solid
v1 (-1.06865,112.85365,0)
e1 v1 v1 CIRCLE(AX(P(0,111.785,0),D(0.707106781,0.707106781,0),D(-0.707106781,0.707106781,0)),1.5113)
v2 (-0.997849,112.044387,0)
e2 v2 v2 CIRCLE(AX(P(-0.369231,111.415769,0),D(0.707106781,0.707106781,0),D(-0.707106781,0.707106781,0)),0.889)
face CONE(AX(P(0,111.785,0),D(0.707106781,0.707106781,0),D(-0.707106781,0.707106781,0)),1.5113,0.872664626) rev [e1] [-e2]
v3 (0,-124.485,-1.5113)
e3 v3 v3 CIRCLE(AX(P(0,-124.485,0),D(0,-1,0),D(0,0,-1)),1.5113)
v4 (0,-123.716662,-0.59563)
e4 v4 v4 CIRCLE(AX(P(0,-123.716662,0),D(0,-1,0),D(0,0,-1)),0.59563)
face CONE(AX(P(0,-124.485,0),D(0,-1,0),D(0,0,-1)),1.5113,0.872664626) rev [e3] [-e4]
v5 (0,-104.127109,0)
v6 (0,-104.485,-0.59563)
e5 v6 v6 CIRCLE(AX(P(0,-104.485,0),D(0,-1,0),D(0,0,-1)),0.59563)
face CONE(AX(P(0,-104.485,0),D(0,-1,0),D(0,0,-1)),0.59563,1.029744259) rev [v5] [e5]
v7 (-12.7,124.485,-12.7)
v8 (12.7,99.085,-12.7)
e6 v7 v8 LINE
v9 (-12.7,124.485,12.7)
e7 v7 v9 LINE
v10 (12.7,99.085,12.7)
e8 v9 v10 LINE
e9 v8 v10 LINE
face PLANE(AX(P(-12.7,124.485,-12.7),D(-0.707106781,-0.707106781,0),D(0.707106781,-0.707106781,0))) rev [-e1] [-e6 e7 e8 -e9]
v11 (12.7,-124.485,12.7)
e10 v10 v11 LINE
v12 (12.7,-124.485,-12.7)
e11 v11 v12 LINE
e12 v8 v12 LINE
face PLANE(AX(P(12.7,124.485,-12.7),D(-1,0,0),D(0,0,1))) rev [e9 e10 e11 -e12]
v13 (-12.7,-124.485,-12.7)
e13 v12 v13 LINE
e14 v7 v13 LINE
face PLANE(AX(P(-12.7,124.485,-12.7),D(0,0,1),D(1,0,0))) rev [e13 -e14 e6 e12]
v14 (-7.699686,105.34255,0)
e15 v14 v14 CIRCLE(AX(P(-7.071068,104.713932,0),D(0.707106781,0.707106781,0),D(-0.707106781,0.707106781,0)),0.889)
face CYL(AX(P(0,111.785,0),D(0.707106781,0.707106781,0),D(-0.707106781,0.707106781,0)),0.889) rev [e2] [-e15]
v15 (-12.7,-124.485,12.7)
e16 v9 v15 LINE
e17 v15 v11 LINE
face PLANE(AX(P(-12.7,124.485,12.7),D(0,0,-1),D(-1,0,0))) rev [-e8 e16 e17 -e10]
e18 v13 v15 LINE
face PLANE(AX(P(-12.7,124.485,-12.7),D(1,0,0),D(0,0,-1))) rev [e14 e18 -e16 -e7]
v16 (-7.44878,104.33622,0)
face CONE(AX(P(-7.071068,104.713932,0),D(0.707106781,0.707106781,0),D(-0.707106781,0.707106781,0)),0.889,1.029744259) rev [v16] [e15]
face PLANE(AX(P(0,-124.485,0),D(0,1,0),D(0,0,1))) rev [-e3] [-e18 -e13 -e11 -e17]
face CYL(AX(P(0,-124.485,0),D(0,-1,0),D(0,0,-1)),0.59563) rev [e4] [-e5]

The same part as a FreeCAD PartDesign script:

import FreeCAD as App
import Part
import Sketcher

V = App.Vector
Q = App.Units.Quantity

doc = App.newDocument("Part")
body = doc.addObject("PartDesign::Body", "Body")

# Sketch on XZ plane
sketch1 = body.newObject("Sketcher::SketchObject", "Sketch")
sketch1.AttachmentSupport = (doc.getObject("XZ_Plane"), [""])
sketch1.MapMode = "FlatFace"
sketch1.addGeometry(Part.LineSegment(V(-13, -13, 0), V(-13, 13, 0)), False)
sketch1.addGeometry(Part.LineSegment(V(-13, 13, 0), V(13, 13, 0)), False)
sketch1.addGeometry(Part.LineSegment(V(13, 13, 0), V(13, -13, 0)), False)
sketch1.addGeometry(Part.LineSegment(V(13, -13, 0), V(-13, -13, 0)), False)
sketch1.addConstraint(Sketcher.Constraint("Coincident", 0, 2, 1, 1))
sketch1.addConstraint(Sketcher.Constraint("Coincident", 1, 2, 2, 1))
sketch1.addConstraint(Sketcher.Constraint("Coincident", 2, 2, 3, 1))
sketch1.addConstraint(Sketcher.Constraint("Coincident", 3, 2, 0, 1))
sketch1.addConstraint(Sketcher.Constraint("Vertical", 0))
sketch1.addConstraint(Sketcher.Constraint("Horizontal", 1))
sketch1.addConstraint(Sketcher.Constraint("Vertical", 2))
sketch1.addConstraint(Sketcher.Constraint("Horizontal", 3))
sketch1.addConstraint(Sketcher.Constraint("Symmetric", 0, 2, 2, 2, -1, 1))
sketch1.addConstraint(Sketcher.Constraint("Equal", 3, 0))
sketch1.addConstraint(Sketcher.Constraint("DistanceX", 1, 1, 1, 2, Q("25.4 mm")))
pad1 = body.newObject("PartDesign::Pad", "Pad")
pad1.Profile = sketch1
pad1.Length = 248.97
pad1.Midplane = True

# Sketch on XZ plane
sketch2 = body.newObject("Sketcher::SketchObject", "Sketch001")
sketch2.AttachmentSupport = (doc.getObject("XZ_Plane"), [""])
sketch2.MapMode = "FlatFace"
sketch2.AttachmentOffset = App.Placement(V(0, 0, 124.485), App.Rotation())
sketch2.addGeometry(Part.Circle(V(0, 0, 0), V(0, 0, 1), 0.6), False)
sketch2.addConstraint(Sketcher.Constraint("Coincident", 0, 3, -1, 1))
sketch2.addConstraint(Sketcher.Constraint("Diameter", 0, Q("1.19126 mm")))
doc.recompute()
hole = body.newObject("PartDesign::Hole", "Hole")
hole.Profile = sketch2
hole.ThreadType = "None"
hole.Diameter = 1.19126
hole.DepthType = "Dimension"
hole.Depth = 20
hole.DrillPoint = "Angled"
hole.DrillPointAngle = 118
hole.HoleCutType = "Countersink"
hole.HoleCutDiameter = 3.0226
hole.HoleCutCountersinkAngle = 100

# Sketch on XY plane
sketch3 = body.newObject("Sketcher::SketchObject", "Sketch002")
sketch3.AttachmentSupport = (doc.getObject("XY_Plane"), [""])
sketch3.MapMode = "FlatFace"
sketch3.addGeometry(Part.LineSegment(V(13, 124, 0), V(-13, 124, 0)), False)
sketch3.addGeometry(Part.LineSegment(V(-13, 124, 0), V(13, 99, 0)), False)
sketch3.addGeometry(Part.LineSegment(V(13, 99, 0), V(13, 124, 0)), False)
sketch3.addConstraint(Sketcher.Constraint("Coincident", 0, 2, 1, 1))
sketch3.addConstraint(Sketcher.Constraint("Coincident", 1, 2, 2, 1))
sketch3.addConstraint(Sketcher.Constraint("Coincident", 2, 2, 0, 1))
sketch3.addConstraint(Sketcher.Constraint("Horizontal", 0))
sketch3.addConstraint(Sketcher.Constraint("Vertical", 2))
sketch3.addConstraint(Sketcher.Constraint("Equal", 0, 2))
sketch3.addConstraint(Sketcher.Constraint("DistanceX", 0, 2, 0, 1, Q("25.4 mm")))
sketch3.addConstraint(Sketcher.Constraint("DistanceX", 0, 2, -1, 1, Q("12.7 mm")))
sketch3.addConstraint(Sketcher.Constraint("DistanceY", -1, 1, 0, 2, Q("124.485 mm")))
pocket1 = body.newObject("PartDesign::Pocket", "Pocket")
pocket1.Profile = sketch3
pocket1.Type = "ThroughAll"
pocket1.Midplane = True

# Sketch on an angled plane
sketch4 = body.newObject("Sketcher::SketchObject", "Sketch003")
sketch4.Placement = App.Placement(V(55.8925, 55.8925, 0), App.Rotation(V(0.707106781, -0.707106781, 0), V(0, 0, -0.999999999), V(0.707106781, 0.707106781, 0), "ZXY"))
sketch4.addGeometry(Part.Circle(V(-79, 0, 0), V(0, 0, 1), 0.9), False)
sketch4.addConstraint(Sketcher.Constraint("PointOnObject", 0, 3, -1))
sketch4.addConstraint(Sketcher.Constraint("Diameter", 0, Q("1.778 mm")))
sketch4.addConstraint(Sketcher.Constraint("DistanceX", 0, 3, -1, 1, Q("79.043931 mm")))
doc.recompute()
hole2 = body.newObject("PartDesign::Hole", "Hole001")
hole2.Profile = sketch4
hole2.ThreadType = "None"
hole2.Diameter = 1.778
hole2.DepthType = "Dimension"
hole2.Depth = 10
hole2.DrillPoint = "Angled"
hole2.DrillPointAngle = 118
hole2.HoleCutType = "Countersink"
hole2.HoleCutDiameter = 3.0226
hole2.HoleCutCountersinkAngle = 100

doc.recompute()
